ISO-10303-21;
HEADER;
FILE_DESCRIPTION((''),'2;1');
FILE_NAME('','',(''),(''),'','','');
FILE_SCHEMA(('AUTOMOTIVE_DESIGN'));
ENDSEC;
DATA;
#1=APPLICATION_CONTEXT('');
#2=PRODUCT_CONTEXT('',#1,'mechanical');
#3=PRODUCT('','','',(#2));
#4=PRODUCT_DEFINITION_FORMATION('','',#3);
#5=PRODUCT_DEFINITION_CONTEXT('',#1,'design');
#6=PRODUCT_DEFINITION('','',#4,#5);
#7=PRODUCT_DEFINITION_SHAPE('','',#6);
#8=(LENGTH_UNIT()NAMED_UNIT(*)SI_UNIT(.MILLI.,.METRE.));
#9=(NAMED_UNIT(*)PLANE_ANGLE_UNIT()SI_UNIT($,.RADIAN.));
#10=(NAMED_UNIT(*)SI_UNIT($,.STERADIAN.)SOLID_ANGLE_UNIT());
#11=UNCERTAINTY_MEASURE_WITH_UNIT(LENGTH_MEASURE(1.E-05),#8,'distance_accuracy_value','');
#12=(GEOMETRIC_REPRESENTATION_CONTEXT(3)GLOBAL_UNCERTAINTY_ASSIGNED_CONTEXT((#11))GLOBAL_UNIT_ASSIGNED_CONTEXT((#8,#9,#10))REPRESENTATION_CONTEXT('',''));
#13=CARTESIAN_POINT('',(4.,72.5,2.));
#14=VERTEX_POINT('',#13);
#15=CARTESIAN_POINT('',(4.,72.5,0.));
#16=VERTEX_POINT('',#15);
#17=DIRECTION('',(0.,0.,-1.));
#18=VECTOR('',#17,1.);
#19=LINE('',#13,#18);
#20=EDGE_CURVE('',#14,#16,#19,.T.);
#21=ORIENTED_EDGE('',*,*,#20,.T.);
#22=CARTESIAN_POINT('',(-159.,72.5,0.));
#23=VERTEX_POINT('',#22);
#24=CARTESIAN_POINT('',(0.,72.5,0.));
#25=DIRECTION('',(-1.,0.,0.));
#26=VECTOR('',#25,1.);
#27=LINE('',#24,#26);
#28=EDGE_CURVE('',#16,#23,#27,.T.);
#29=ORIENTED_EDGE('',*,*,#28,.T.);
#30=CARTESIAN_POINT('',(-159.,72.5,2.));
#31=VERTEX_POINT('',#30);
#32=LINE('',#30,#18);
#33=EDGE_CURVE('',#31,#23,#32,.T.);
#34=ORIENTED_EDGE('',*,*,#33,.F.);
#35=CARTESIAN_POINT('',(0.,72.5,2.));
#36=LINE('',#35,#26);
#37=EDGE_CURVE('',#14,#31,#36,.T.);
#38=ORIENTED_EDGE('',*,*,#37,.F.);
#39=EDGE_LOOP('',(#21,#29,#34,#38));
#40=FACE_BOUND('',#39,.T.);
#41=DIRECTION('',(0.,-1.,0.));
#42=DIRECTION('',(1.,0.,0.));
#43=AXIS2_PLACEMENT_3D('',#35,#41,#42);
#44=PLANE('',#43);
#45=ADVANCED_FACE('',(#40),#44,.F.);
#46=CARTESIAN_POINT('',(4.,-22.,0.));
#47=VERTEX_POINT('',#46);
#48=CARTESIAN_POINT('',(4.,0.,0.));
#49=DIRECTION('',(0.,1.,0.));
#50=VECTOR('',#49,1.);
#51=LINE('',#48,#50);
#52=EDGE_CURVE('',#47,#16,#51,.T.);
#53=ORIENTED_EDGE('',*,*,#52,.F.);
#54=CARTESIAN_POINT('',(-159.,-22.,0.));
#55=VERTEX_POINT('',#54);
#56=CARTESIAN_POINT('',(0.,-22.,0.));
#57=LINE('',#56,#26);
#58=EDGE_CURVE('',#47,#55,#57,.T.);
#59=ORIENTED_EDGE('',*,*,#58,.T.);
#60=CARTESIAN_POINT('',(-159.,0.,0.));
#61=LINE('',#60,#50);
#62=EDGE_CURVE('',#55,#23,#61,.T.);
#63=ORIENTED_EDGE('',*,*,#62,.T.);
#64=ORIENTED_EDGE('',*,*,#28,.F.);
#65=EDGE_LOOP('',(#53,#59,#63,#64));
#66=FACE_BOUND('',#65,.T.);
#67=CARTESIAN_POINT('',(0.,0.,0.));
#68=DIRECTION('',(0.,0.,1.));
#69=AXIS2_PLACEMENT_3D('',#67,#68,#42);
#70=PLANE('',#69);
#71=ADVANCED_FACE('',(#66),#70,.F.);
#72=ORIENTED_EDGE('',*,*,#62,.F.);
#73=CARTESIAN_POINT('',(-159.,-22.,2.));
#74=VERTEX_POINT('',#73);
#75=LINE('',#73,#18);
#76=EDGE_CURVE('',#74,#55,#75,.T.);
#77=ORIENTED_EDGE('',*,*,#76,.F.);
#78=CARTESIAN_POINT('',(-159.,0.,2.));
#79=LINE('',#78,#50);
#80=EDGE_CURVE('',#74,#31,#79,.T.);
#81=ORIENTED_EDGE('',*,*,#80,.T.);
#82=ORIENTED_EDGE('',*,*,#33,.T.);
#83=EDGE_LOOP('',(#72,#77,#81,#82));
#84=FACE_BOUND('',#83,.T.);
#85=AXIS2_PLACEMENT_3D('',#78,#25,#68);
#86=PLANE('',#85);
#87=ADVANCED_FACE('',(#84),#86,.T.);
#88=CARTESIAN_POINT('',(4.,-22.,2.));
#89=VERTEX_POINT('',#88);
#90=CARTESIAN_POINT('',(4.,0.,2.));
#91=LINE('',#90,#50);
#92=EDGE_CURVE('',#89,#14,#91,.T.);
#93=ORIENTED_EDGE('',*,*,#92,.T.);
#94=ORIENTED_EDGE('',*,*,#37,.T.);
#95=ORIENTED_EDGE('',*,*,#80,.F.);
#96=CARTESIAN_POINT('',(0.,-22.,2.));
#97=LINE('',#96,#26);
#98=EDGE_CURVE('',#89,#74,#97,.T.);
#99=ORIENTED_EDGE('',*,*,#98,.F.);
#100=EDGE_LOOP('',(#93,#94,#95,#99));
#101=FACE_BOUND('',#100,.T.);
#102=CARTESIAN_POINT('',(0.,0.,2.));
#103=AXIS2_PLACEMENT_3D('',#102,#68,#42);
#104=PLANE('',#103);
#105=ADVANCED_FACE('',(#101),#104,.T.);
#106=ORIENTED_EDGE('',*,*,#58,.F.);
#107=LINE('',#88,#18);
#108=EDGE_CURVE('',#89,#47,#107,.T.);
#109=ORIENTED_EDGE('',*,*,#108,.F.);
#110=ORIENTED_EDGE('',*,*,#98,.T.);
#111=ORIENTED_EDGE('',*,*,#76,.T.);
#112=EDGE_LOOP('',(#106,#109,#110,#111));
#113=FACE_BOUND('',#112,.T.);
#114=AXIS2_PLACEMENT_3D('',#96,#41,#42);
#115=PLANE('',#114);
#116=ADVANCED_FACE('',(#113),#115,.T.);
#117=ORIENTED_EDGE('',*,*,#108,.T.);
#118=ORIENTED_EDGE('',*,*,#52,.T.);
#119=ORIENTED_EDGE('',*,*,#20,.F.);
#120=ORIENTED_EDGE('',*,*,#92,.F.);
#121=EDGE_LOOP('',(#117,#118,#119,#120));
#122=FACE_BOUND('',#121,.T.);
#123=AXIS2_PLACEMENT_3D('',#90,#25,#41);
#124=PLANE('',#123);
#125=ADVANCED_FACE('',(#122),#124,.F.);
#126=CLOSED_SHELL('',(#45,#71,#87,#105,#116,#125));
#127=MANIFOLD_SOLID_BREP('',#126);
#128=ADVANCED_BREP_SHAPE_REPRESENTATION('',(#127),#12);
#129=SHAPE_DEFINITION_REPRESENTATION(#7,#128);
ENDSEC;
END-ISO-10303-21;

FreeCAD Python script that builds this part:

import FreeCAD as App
import Part
import Sketcher

V = App.Vector
Q = App.Units.Quantity


def add_polygon(sketch, points):
    """Adds a closed chain of lines whose ends are joined by coincident constraints."""
    first, n = sketch.GeometryCount, len(points)
    for a, b in zip(points, points[1:] + points[:1]):
        sketch.addGeometry(Part.LineSegment(App.Vector(*a, 0), App.Vector(*b, 0)), False)
    for i in range(n):
        sketch.addConstraint(Sketcher.Constraint("Coincident", first + i, 2, first + (i + 1) % n, 1))

doc = App.newDocument("Part")
params = doc.addObject("Spreadsheet::Sheet", "Params")
for row, (alias, value) in enumerate([
    ("sketch1_width", "163 mm"),
    ("sketch1_height", "94.5 mm"),
    ("pad1_length", "2 mm"),
], start=1):
    params.set(f"A{row}", alias)
    params.set(f"B{row}", "=" + value)
    params.setAlias(f"B{row}", alias)

body = doc.addObject("PartDesign::Body", "Body")

# Sketch on XY plane
sketch1 = body.newObject("Sketcher::SketchObject", "Sketch")
sketch1.AttachmentSupport = (doc.getObject("XY_Plane"), [""])
sketch1.MapMode = "FlatFace"
add_polygon(sketch1, [(-159, 72), (-159, -22), (4, -22), (4, 72)])  # lines 0-3
sketch1.addConstraint(Sketcher.Constraint("Vertical", 0))
sketch1.addConstraint(Sketcher.Constraint("Horizontal", 1))
sketch1.addConstraint(Sketcher.Constraint("Vertical", 2))
sketch1.addConstraint(Sketcher.Constraint("Horizontal", 3))
sketch1.addConstraint(Sketcher.Constraint("DistanceX", 1, 1, 1, 2, Q("163 mm")))
sketch1.addConstraint(Sketcher.Constraint("DistanceY", 0, 2, 0, 1, Q("94.5 mm")))
sketch1.addConstraint(Sketcher.Constraint("DistanceX", 0, 2, -1, 1, Q("159 mm")))
sketch1.addConstraint(Sketcher.Constraint("DistanceY", 0, 2, -1, 1, Q("22 mm")))
sketch1.setExpression("Constraints[8]", "Params.sketch1_width")
sketch1.setExpression("Constraints[9]", "Params.sketch1_height")
pad1 = body.newObject("PartDesign::Pad", "Pad")
pad1.Profile = sketch1
pad1.setExpression("Length", "Params.pad1_length")

doc.recompute()
